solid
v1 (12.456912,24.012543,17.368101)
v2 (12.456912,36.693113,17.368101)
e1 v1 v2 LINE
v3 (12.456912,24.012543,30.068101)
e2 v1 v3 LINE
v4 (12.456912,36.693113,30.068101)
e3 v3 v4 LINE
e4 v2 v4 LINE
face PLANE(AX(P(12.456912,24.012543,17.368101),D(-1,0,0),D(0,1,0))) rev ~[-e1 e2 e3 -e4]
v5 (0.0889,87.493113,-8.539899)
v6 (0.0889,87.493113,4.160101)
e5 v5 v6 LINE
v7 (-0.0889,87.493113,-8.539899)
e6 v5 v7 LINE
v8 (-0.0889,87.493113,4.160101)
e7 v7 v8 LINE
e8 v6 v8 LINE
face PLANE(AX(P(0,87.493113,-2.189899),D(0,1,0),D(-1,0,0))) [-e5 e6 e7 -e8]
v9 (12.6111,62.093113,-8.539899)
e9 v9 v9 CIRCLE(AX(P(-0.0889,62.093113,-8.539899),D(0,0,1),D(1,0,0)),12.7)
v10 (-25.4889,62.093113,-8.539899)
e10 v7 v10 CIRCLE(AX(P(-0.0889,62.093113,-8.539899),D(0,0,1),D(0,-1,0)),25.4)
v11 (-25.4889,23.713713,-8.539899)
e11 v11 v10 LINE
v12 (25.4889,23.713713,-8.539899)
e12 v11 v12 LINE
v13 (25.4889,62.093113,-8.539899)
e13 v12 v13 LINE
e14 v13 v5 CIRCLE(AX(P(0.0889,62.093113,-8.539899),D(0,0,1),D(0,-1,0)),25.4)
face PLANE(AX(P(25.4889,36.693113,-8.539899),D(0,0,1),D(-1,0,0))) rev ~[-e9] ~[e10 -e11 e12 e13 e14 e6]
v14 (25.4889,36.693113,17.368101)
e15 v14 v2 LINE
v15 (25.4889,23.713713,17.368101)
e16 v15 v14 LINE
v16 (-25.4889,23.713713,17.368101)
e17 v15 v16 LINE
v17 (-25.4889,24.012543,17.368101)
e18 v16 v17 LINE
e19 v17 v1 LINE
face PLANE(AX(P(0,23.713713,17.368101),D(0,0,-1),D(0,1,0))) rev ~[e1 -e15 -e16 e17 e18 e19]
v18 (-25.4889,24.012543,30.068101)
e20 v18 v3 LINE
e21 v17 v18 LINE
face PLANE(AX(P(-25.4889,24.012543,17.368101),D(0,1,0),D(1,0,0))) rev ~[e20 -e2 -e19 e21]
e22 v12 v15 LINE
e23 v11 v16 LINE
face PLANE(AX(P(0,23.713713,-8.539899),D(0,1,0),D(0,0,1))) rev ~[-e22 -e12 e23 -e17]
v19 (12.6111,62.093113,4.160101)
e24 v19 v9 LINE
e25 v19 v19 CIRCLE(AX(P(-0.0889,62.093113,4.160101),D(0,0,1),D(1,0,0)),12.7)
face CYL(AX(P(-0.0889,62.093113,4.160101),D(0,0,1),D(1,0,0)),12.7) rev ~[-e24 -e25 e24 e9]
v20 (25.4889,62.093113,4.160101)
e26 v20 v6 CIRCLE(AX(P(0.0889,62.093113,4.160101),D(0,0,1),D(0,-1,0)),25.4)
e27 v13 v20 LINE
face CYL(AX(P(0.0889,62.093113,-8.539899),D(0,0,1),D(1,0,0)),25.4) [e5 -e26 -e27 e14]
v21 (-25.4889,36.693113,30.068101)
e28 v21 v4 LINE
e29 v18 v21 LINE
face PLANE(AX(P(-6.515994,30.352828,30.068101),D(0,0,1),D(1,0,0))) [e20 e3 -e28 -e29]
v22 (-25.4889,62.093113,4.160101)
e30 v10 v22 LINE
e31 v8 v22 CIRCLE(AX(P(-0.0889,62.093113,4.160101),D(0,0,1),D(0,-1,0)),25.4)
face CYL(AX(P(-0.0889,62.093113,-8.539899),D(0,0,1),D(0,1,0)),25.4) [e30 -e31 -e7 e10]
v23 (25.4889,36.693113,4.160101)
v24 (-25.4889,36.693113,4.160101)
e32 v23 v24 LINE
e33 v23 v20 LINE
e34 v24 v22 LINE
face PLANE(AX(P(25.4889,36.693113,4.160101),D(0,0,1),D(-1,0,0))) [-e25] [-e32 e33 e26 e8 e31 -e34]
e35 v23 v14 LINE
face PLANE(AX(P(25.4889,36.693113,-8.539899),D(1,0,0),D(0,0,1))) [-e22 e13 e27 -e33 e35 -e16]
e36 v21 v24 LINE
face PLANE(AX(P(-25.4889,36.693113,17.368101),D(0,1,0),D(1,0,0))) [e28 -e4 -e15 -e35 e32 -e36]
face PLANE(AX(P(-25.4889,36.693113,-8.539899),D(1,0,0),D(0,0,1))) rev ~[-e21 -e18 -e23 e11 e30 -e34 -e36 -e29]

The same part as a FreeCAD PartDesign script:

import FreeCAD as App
import Part
import Sketcher

V = App.Vector
Q = App.Units.Quantity


def edges_at(feature, points):
    """Names of the edges that pass closest to the given points."""
    edges = feature.Shape.Edges
    near = lambda p: min(range(len(edges)), key=lambda i: edges[i].distToShape(Part.Vertex(*p))[0])
    return sorted({f"Edge{near(p) + 1}" for p in points})

doc = App.newDocument("Part")
body = doc.addObject("PartDesign::Body", "Body")

# Sketch on YZ plane
sketch1 = body.newObject("Sketcher::SketchObject", "Sketch")
sketch1.AttachmentSupport = (doc.getObject("YZ_Plane"), [""])
sketch1.MapMode = "FlatFace"
sketch1.addGeometry(Part.LineSegment(V(24, 17, 0), V(24, -9, 0)), False)
sketch1.addGeometry(Part.LineSegment(V(24, -9, 0), V(37, -9, 0)), False)
sketch1.addGeometry(Part.LineSegment(V(37, -9, 0), V(37, 17, 0)), False)
sketch1.addGeometry(Part.LineSegment(V(37, 17, 0), V(24, 17, 0)), False)
sketch1.addConstraint(Sketcher.Constraint("Coincident", 0, 2, 1, 1))
sketch1.addConstraint(Sketcher.Constraint("Coincident", 1, 2, 2, 1))
sketch1.addConstraint(Sketcher.Constraint("Coincident", 2, 2, 3, 1))
sketch1.addConstraint(Sketcher.Constraint("Coincident", 3, 2, 0, 1))
sketch1.addConstraint(Sketcher.Constraint("Vertical", 0))
sketch1.addConstraint(Sketcher.Constraint("Horizontal", 1))
sketch1.addConstraint(Sketcher.Constraint("Vertical", 2))
sketch1.addConstraint(Sketcher.Constraint("Horizontal", 3))
sketch1.addConstraint(Sketcher.Constraint("DistanceY", 0, 2, 0, 1, Q("1.02 in")))
sketch1.addConstraint(Sketcher.Constraint("DistanceX", 1, 1, 1, 2, Q("0.511 in")))
sketch1.addConstraint(Sketcher.Constraint("DistanceY", 0, 2, -1, 1, 8.539899))
sketch1.addConstraint(Sketcher.Constraint("DistanceX", -1, 1, 0, 2, 23.713713))
pad1 = body.newObject("PartDesign::Pad", "Pad")
pad1.Profile = sketch1
pad1.Length = Q("2.007 in")
pad1.Midplane = True

# Sketch on XY plane
sketch2 = body.newObject("Sketcher::SketchObject", "Sketch001")
sketch2.AttachmentSupport = (doc.getObject("XY_Plane"), [""])
sketch2.MapMode = "FlatFace"
sketch2.AttachmentOffset = App.Placement(V(0, 0, 17.368101), App.Rotation())
sketch2.addGeometry(Part.LineSegment(V(-25, 37, 0), V(-25, 24, 0)), False)
sketch2.addGeometry(Part.LineSegment(V(-25, 24, 0), V(12, 24, 0)), False)
sketch2.addGeometry(Part.LineSegment(V(12, 24, 0), V(12, 37, 0)), False)
sketch2.addGeometry(Part.LineSegment(V(12, 37, 0), V(-25, 37, 0)), False)
sketch2.addConstraint(Sketcher.Constraint("Coincident", 0, 2, 1, 1))
sketch2.addConstraint(Sketcher.Constraint("Coincident", 1, 2, 2, 1))
sketch2.addConstraint(Sketcher.Constraint("Coincident", 2, 2, 3, 1))
sketch2.addConstraint(Sketcher.Constraint("Coincident", 3, 2, 0, 1))
sketch2.addConstraint(Sketcher.Constraint("Vertical", 0))
sketch2.addConstraint(Sketcher.Constraint("Horizontal", 1))
sketch2.addConstraint(Sketcher.Constraint("Vertical", 2))
sketch2.addConstraint(Sketcher.Constraint("Horizontal", 3))
sketch2.addConstraint(Sketcher.Constraint("DistanceX", 0, 2, -1, 1, Q("1.0035 in")))
sketch2.addConstraint(Sketcher.Constraint("DistanceY", 0, 2, 0, 1, 12.68057))
sketch2.addConstraint(Sketcher.Constraint("DistanceX", 1, 1, 1, 2, 37.945812))
sketch2.addConstraint(Sketcher.Constraint("DistanceY", -1, 1, 0, 2, 24.012543))
pad2 = body.newObject("PartDesign::Pad", "Pad001")
pad2.Profile = sketch2
pad2.Length = Q("0.5 in")

# Sketch on XZ plane
sketch3 = body.newObject("Sketcher::SketchObject", "Sketch002")
sketch3.AttachmentSupport = (doc.getObject("XZ_Plane"), [""])
sketch3.MapMode = "FlatFace"
sketch3.AttachmentOffset = App.Placement(V(0, 0, -36.693113), App.Rotation())
sketch3.addGeometry(Part.LineSegment(V(25, 4, 0), V(25, -9, 0)), False)
sketch3.addGeometry(Part.LineSegment(V(25, -9, 0), V(-25, -9, 0)), False)
sketch3.addGeometry(Part.LineSegment(V(-25, -9, 0), V(-25, 4, 0)), False)
sketch3.addGeometry(Part.LineSegment(V(-25, 4, 0), V(25, 4, 0)), False)
sketch3.addConstraint(Sketcher.Constraint("Coincident", 0, 2, 1, 1))
sketch3.addConstraint(Sketcher.Constraint("Coincident", 1, 2, 2, 1))
sketch3.addConstraint(Sketcher.Constraint("Coincident", 2, 2, 3, 1))
sketch3.addConstraint(Sketcher.Constraint("Coincident", 3, 2, 0, 1))
sketch3.addConstraint(Sketcher.Constraint("Vertical", 0))
sketch3.addConstraint(Sketcher.Constraint("Horizontal", 1))
sketch3.addConstraint(Sketcher.Constraint("Vertical", 2))
sketch3.addConstraint(Sketcher.Constraint("Horizontal", 3))
sketch3.addConstraint(Sketcher.Constraint("DistanceY", 0, 2, 0, 1, Q("0.5 in")))
sketch3.addConstraint(Sketcher.Constraint("DistanceX", 1, 2, 1, 1, Q("2.007 in")))
sketch3.addConstraint(Sketcher.Constraint("DistanceX", -1, 1, 0, 2, Q("1.0035 in")))
sketch3.addConstraint(Sketcher.Constraint("DistanceY", 0, 2, -1, 1, 8.539899))
pad3 = body.newObject("PartDesign::Pad", "Pad002")
pad3.Profile = sketch3
pad3.Length = Q("2 in")
pad3.Reversed = True

# Sketch on XY plane
sketch4 = body.newObject("Sketcher::SketchObject", "Sketch003")
sketch4.AttachmentSupport = (doc.getObject("XY_Plane"), [""])
sketch4.MapMode = "FlatFace"
sketch4.AttachmentOffset = App.Placement(V(0, 0, 4.160101), App.Rotation())
sketch4.addGeometry(Part.Circle(V(0, 62, 0), V(0, 0, 1), 13), False)
sketch4.addConstraint(Sketcher.Constraint("Diameter", 0, Q("1 in")))
sketch4.addConstraint(Sketcher.Constraint("DistanceX", 0, 3, -1, 1, Q("0.0035 in")))
sketch4.addConstraint(Sketcher.Constraint("DistanceY", -1, 1, 0, 3, 62.093113))
pocket1 = body.newObject("PartDesign::Pocket", "Pocket")
pocket1.Profile = sketch4
pocket1.Type = "ThroughAll"
doc.recompute()

fillet = body.newObject("PartDesign::Fillet", "Fillet")
fillet.Base = (pocket1, edges_at(pocket1, [(-25.489, 87.493, -2.19), (25.489, 87.493, -2.19)]))
fillet.Radius = Q("1 in")
body2 = doc.addObject("PartDesign::Body", "Body001")

# Sketch on XZ plane
sketch5 = body2.newObject("Sketcher::SketchObject", "Sketch004")
sketch5.AttachmentSupport = (doc.getObject("XZ_Plane001"), [""])
sketch5.MapMode = "FlatFace"
sketch5.addGeometry(Part.LineSegment(V(-13, 30, 0), V(-13, 17, 0)), False)
sketch5.addGeometry(Part.LineSegment(V(-13, 17, 0), V(25, 17, 0)), False)
sketch5.addGeometry(Part.LineSegment(V(25, 17, 0), V(25, 30, 0)), False)
sketch5.addGeometry(Part.LineSegment(V(25, 30, 0), V(-13, 30, 0)), False)
sketch5.addConstraint(Sketcher.Constraint("Coincident", 0, 2, 1, 1))
sketch5.addConstraint(Sketcher.Constraint("Coincident", 1, 2, 2, 1))
sketch5.addConstraint(Sketcher.Constraint("Coincident", 2, 2, 3, 1))
sketch5.addConstraint(Sketcher.Constraint("Coincident", 3, 2, 0, 1))
sketch5.addConstraint(Sketcher.Constraint("Vertical", 0))
sketch5.addConstraint(Sketcher.Constraint("Horizontal", 1))
sketch5.addConstraint(Sketcher.Constraint("Vertical", 2))
sketch5.addConstraint(Sketcher.Constraint("Horizontal", 3))
sketch5.addConstraint(Sketcher.Constraint("DistanceX", 1, 1, 1, 2, Q("1.5 in")))
sketch5.addConstraint(Sketcher.Constraint("DistanceY", 0, 2, 0, 1, Q("0.5 in")))
sketch5.addConstraint(Sketcher.Constraint("DistanceX", 0, 2, -1, 1, 12.660818))
sketch5.addConstraint(Sketcher.Constraint("DistanceY", -1, 1, 0, 2, 17.480109))
pad4 = body2.newObject("PartDesign::Pad", "Pad003")
pad4.Profile = sketch5
pad4.Length = Q("0.5 in")
pad4.Midplane = True
body2.Visibility = False

doc.recompute()
